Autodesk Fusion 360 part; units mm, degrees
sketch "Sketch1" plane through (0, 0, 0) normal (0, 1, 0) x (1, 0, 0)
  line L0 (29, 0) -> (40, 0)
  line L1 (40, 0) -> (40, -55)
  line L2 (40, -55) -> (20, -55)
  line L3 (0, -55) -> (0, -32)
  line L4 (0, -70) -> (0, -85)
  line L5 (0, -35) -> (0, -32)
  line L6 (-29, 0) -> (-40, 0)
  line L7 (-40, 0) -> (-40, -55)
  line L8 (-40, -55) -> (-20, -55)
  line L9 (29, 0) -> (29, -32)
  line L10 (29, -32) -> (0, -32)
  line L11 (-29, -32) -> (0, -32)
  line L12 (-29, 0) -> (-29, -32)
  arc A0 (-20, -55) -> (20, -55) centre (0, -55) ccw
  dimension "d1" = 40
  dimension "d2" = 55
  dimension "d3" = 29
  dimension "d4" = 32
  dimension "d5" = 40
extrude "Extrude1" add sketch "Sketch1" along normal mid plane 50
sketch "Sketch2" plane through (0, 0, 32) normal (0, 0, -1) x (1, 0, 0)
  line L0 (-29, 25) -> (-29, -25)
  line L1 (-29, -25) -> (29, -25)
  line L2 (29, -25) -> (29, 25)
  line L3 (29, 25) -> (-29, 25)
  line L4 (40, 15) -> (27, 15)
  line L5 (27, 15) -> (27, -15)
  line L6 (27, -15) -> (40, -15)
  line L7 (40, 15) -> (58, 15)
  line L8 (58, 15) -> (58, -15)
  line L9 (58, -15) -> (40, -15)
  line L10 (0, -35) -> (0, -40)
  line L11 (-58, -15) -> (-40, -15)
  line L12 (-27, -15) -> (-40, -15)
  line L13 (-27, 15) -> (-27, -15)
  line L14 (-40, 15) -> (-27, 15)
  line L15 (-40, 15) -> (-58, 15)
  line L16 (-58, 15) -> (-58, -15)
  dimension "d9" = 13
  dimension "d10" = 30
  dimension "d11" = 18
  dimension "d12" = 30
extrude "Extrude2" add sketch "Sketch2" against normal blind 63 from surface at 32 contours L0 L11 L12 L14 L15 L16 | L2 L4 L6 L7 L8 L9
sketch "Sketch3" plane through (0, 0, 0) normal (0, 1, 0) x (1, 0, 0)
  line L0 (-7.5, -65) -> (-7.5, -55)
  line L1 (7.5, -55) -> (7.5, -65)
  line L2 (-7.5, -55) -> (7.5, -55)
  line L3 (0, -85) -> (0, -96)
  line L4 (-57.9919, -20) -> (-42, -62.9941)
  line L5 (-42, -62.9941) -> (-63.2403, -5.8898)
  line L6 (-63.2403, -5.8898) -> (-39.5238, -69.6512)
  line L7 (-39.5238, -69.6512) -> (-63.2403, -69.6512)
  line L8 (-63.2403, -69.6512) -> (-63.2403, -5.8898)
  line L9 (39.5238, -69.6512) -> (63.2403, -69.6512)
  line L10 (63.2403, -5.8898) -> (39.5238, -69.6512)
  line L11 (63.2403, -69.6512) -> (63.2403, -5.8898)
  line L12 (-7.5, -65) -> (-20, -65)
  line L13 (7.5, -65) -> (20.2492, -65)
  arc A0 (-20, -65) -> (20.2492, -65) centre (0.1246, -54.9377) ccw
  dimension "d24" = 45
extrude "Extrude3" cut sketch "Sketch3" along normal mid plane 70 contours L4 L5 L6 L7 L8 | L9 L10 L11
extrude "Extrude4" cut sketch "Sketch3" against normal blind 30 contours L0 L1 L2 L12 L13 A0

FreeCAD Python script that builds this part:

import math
import FreeCAD as App
import Part
import Sketcher
from FreeCAD import Vector
Q = App.Units.Quantity


def add_polygon(sketch, points):
    """Adds a closed chain of lines whose ends are joined by coincident constraints."""
    first, n = sketch.GeometryCount, len(points)
    for a, b in zip(points, points[1:] + points[:1]):
        sketch.addGeometry(Part.LineSegment(App.Vector(*a, 0), App.Vector(*b, 0)), False)
    for i in range(n):
        sketch.addConstraint(Sketcher.Constraint("Coincident", first + i, 2, first + (i + 1) % n, 1))

doc = App.newDocument("Part")
body = doc.addObject("PartDesign::Body", "Body")

# Sketch on XZ plane
sketch1 = doc.addObject("Sketcher::SketchObject", "Sketch")
body.addObject(sketch1)
sketch1.AttachmentSupport = (doc.XZ_Plane, [""])
sketch1.MapMode = "FlatFace"
sketch1.addGeometry(Part.LineSegment(Vector(40, 0, 0), Vector(29, 0, 0)), False)
sketch1.addGeometry(Part.LineSegment(Vector(29, 0, 0), Vector(29, 32, 0)), False)
sketch1.addGeometry(Part.LineSegment(Vector(29, 32, 0), Vector(-29, 32, 0)), False)
sketch1.addGeometry(Part.LineSegment(Vector(-29, 32, 0), Vector(-29, 0, 0)), False)
sketch1.addGeometry(Part.LineSegment(Vector(-29, 0, 0), Vector(-40, 0, 0)), False)
sketch1.addGeometry(Part.LineSegment(Vector(-40, 0, 0), Vector(-40, 55, 0)), False)
sketch1.addGeometry(Part.LineSegment(Vector(-40, 55, 0), Vector(-20, 55, 0)), False)
sketch1.addGeometry(Part.ArcOfCircle(Part.Circle(Vector(0, 55, 0), Vector(0, 0, 1), 20), math.radians(0), math.radians(180)), False)
sketch1.addGeometry(Part.LineSegment(Vector(20, 55, 0), Vector(40, 55, 0)), False)
sketch1.addGeometry(Part.LineSegment(Vector(40, 55, 0), Vector(40, 0, 0)), False)
sketch1.addConstraint(Sketcher.Constraint("Coincident", 0, 2, 1, 1))
sketch1.addConstraint(Sketcher.Constraint("Coincident", 1, 2, 2, 1))
sketch1.addConstraint(Sketcher.Constraint("Coincident", 2, 2, 3, 1))
sketch1.addConstraint(Sketcher.Constraint("Coincident", 3, 2, 4, 1))
sketch1.addConstraint(Sketcher.Constraint("Coincident", 4, 2, 5, 1))
sketch1.addConstraint(Sketcher.Constraint("Coincident", 5, 2, 6, 1))
sketch1.addConstraint(Sketcher.Constraint("Coincident", 6, 2, 7, 2))
sketch1.addConstraint(Sketcher.Constraint("Coincident", 7, 1, 8, 1))
sketch1.addConstraint(Sketcher.Constraint("Coincident", 8, 2, 9, 1))
sketch1.addConstraint(Sketcher.Constraint("Coincident", 9, 2, 0, 1))
sketch1.addConstraint(Sketcher.Constraint("Horizontal", 0))
sketch1.addConstraint(Sketcher.Constraint("Vertical", 1))
sketch1.addConstraint(Sketcher.Constraint("Horizontal", 2))
sketch1.addConstraint(Sketcher.Constraint("Vertical", 3))
sketch1.addConstraint(Sketcher.Constraint("Horizontal", 4))
sketch1.addConstraint(Sketcher.Constraint("Vertical", 5))
sketch1.addConstraint(Sketcher.Constraint("Horizontal", 6))
sketch1.addConstraint(Sketcher.Constraint("Horizontal", 8))
sketch1.addConstraint(Sketcher.Constraint("Vertical", 9))
sketch1.addConstraint(Sketcher.Constraint("Symmetric", 0, 2, 3, 2, -1, 1))
sketch1.addConstraint(Sketcher.Constraint("Symmetric", 6, 2, 7, 1, -2))
sketch1.addConstraint(Sketcher.Constraint("Symmetric", 4, 2, 9, 2, -2))
sketch1.addConstraint(Sketcher.Constraint("Horizontal", 7, 3, 5, 2))
sketch1.addConstraint(Sketcher.Constraint("Radius", 7, Q("20 mm")))
sketch1.addConstraint(Sketcher.Constraint("DistanceY", 1, 1, 1, 2, Q("32 mm")))
sketch1.addConstraint(Sketcher.Constraint("DistanceY", 5, 1, 5, 2, Q("55 mm")))
sketch1.addConstraint(Sketcher.Constraint("DistanceX", -1, 1, 0, 2, Q("29 mm")))
sketch1.addConstraint(Sketcher.Constraint("DistanceX", 4, 2, -1, 1, Q("40 mm")))
pad1 = doc.addObject("PartDesign::Pad", "Pad")
body.addObject(pad1)
pad1.Profile = sketch1
pad1.Length = 50
pad1.Midplane = True

# Sketch on XY plane
sketch2 = doc.addObject("Sketcher::SketchObject", "Sketch001")
body.addObject(sketch2)
sketch2.AttachmentSupport = (doc.XY_Plane, [""])
sketch2.MapMode = "FlatFace"
add_polygon(sketch2, [(-29, 15), (-29, -15), (-58, -15), (-58, 15)])  # lines 0-3
add_polygon(sketch2, [(58, -15), (29, -15), (29, 15), (58, 15)])  # lines 4-7
sketch2.addConstraint(Sketcher.Constraint("Vertical", 0))
sketch2.addConstraint(Sketcher.Constraint("Horizontal", 1))
sketch2.addConstraint(Sketcher.Constraint("Vertical", 2))
sketch2.addConstraint(Sketcher.Constraint("Horizontal", 3))
sketch2.addConstraint(Sketcher.Constraint("Horizontal", 4))
sketch2.addConstraint(Sketcher.Constraint("Vertical", 5))
sketch2.addConstraint(Sketcher.Constraint("Horizontal", 6))
sketch2.addConstraint(Sketcher.Constraint("Vertical", 7))
sketch2.addConstraint(Sketcher.Constraint("Symmetric", 3, 2, 4, 2, -1, 1))
sketch2.addConstraint(Sketcher.Constraint("Symmetric", 1, 2, 6, 2, -1, 1))
sketch2.addConstraint(Sketcher.Constraint("Horizontal", 1, 2, 4, 2))
sketch2.addConstraint(Sketcher.Constraint("DistanceY", 0, 2, 0, 1, Q("30 mm")))
sketch2.addConstraint(Sketcher.Constraint("DistanceX", 1, 2, 1, 1, Q("29 mm")))
sketch2.addConstraint(Sketcher.Constraint("DistanceX", 0, 2, -1, 1, Q("29 mm")))
pad2 = doc.addObject("PartDesign::Pad", "Pad001")
body.addObject(pad2)
pad2.Profile = sketch2
pad2.Length = 63

# Sketch on XZ plane
sketch3 = doc.addObject("Sketcher::SketchObject", "Sketch002")
body.addObject(sketch3)
sketch3.AttachmentSupport = (doc.XZ_Plane, [""])
sketch3.MapMode = "FlatFace"
add_polygon(sketch3, [(-42, 63), (-58, 20), (-63, 6), (-63, 70), (-40, 70)])  # lines 0-4
add_polygon(sketch3, [(63, 6), (40, 70), (63, 70)])  # lines 5-7
sketch3.addConstraint(Sketcher.Constraint("Vertical", 2))
sketch3.addConstraint(Sketcher.Constraint("Horizontal", 3))
sketch3.addConstraint(Sketcher.Constraint("Horizontal", 6))
sketch3.addConstraint(Sketcher.Constraint("Vertical", 7))
sketch3.addConstraint(Sketcher.Constraint("Symmetric", 3, 2, 5, 2, -2))
sketch3.addConstraint(Sketcher.Constraint("Symmetric", 1, 2, 7, 2, -2))
sketch3.addConstraint(Sketcher.Constraint("Parallel", 0, 1))
sketch3.addConstraint(Sketcher.Constraint("Parallel", 1, 4))
sketch3.addConstraint(Sketcher.Constraint("DistanceY", -1, 1, 0, 2, Q("20 mm")))
sketch3.addConstraint(Sketcher.Constraint("DistanceX", 4, 2, -1, 1, Q("42 mm")))
sketch3.addConstraint(Sketcher.Constraint("Distance", 0, Q("45.872 mm")))
sketch3.addConstraint(Sketcher.Constraint("DistanceX", 3, 1, 3, 2, Q("23.7165 mm")))
sketch3.addConstraint(Sketcher.Constraint("DistanceY", 2, 1, 2, 2, Q("63.7614 mm")))
sketch3.addConstraint(Sketcher.Constraint("DistanceX", 0, 2, 3, 2, Q("18.468 mm")))
pocket1 = doc.addObject("PartDesign::Pocket", "Pocket")
body.addObject(pocket1)
pocket1.Profile = sketch3
pocket1.Length = 70
pocket1.Midplane = True

# Sketch on XZ plane
sketch4 = doc.addObject("Sketcher::SketchObject", "Sketch003")
body.addObject(sketch4)
sketch4.AttachmentSupport = (doc.XZ_Plane, [""])
sketch4.MapMode = "FlatFace"
sketch4.addGeometry(Part.LineSegment(Vector(-8, 55, 0), Vector(-8, 65, 0)), False)
sketch4.addGeometry(Part.LineSegment(Vector(-8, 65, 0), Vector(-20, 65, 0)), False)
sketch4.addGeometry(Part.ArcOfCircle(Part.Circle(Vector(0, 55, 0), Vector(0, 0, 1), 22), math.radians(27), math.radians(153)), False)
sketch4.addGeometry(Part.LineSegment(Vector(20, 65, 0), Vector(8, 65, 0)), False)
sketch4.addGeometry(Part.LineSegment(Vector(8, 65, 0), Vector(8, 55, 0)), False)
sketch4.addGeometry(Part.LineSegment(Vector(8, 55, 0), Vector(-8, 55, 0)), False)
sketch4.addConstraint(Sketcher.Constraint("Coincident", 0, 2, 1, 1))
sketch4.addConstraint(Sketcher.Constraint("Coincident", 1, 2, 2, 2))
sketch4.addConstraint(Sketcher.Constraint("Coincident", 2, 1, 3, 1))
sketch4.addConstraint(Sketcher.Constraint("Coincident", 3, 2, 4, 1))
sketch4.addConstraint(Sketcher.Constraint("Coincident", 4, 2, 5, 1))
sketch4.addConstraint(Sketcher.Constraint("Coincident", 5, 2, 0, 1))
sketch4.addConstraint(Sketcher.Constraint("Vertical", 0))
sketch4.addConstraint(Sketcher.Constraint("Horizontal", 1))
sketch4.addConstraint(Sketcher.Constraint("Horizontal", 3))
sketch4.addConstraint(Sketcher.Constraint("Vertical", 4))
sketch4.addConstraint(Sketcher.Constraint("Horizontal", 5))
sketch4.addConstraint(Sketcher.Constraint("Symmetric", 0, 2, 3, 2, -2))
sketch4.addConstraint(Sketcher.Constraint("Radius", 2, Q("22.5 mm")))
sketch4.addConstraint(Sketcher.Constraint("DistanceX", 5, 2, 5, 1, Q("15 mm")))
sketch4.addConstraint(Sketcher.Constraint("DistanceY", 0, 1, 0, 2, Q("10 mm")))
sketch4.addConstraint(Sketcher.Constraint("DistanceX", 1, 2, 1, 1, Q("12.5 mm")))
sketch4.addConstraint(Sketcher.Constraint("DistanceY", -1, 1, 0, 2, Q("65 mm")))
sketch4.addConstraint(Sketcher.Constraint("DistanceX", 3, 2, 3, 1, Q("12.7492 mm")))
pocket2 = doc.addObject("PartDesign::Pocket", "Pocket001")
body.addObject(pocket2)
pocket2.Profile = sketch4
pocket2.Length = 30
pocket2.Reversed = True

doc.recompute()
